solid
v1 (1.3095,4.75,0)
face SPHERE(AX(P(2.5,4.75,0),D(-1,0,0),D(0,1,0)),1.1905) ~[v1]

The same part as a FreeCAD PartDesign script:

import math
import FreeCAD as App
import Part
import Sketcher

V = App.Vector
Q = App.Units.Quantity

doc = App.newDocument("Part")
body = doc.addObject("PartDesign::Body", "Body")

# Sketch on XY plane
sketch1 = body.newObject("Sketcher::SketchObject", "Sketch")
sketch1.AttachmentSupport = (doc.getObject("XY_Plane"), [""])
sketch1.MapMode = "FlatFace"
sketch1.addGeometry([
    Part.LineSegment(V(1.3095, 4.75, 0), V(3.6905, 4.75, 0)),
    Part.ArcOfCircle(Part.Circle(V(2.5, 4.75, 0), V(0, 0, 1), 1.1905), math.radians(0), math.radians(180)),
], False)
sketch1.addGeometry(Part.LineSegment(V(1.3095, 4.75, 0), V(3.6905, 4.75, 0)), True)  # axis
sketch1.addConstraint([
    Sketcher.Constraint("Coincident", 0, 1, 1, 2),
    Sketcher.Constraint("Coincident", 1, 1, 0, 2),
    Sketcher.Constraint("Horizontal", 0),
    Sketcher.Constraint("Horizontal", 2),
    Sketcher.Constraint("Coincident", 2, 1, 0, 1),
    Sketcher.Constraint("Horizontal", 1, 3, 0, 1),
    Sketcher.Constraint("Equal", 0, 2),
    Sketcher.Constraint("DistanceX", -1, 1, 1, 3, Q("2.5 mm")),
    Sketcher.Constraint("Radius", 1, Q("1.1905 mm")),
    Sketcher.Constraint("DistanceY", -1, 1, 1, 3, Q("4.75 mm")),
])
revolution = body.newObject("PartDesign::Revolution", "Revolution")
revolution.Profile = sketch1
revolution.ReferenceAxis = (sketch1, ["Axis0"])
revolution.Angle = 360

doc.recompute()
